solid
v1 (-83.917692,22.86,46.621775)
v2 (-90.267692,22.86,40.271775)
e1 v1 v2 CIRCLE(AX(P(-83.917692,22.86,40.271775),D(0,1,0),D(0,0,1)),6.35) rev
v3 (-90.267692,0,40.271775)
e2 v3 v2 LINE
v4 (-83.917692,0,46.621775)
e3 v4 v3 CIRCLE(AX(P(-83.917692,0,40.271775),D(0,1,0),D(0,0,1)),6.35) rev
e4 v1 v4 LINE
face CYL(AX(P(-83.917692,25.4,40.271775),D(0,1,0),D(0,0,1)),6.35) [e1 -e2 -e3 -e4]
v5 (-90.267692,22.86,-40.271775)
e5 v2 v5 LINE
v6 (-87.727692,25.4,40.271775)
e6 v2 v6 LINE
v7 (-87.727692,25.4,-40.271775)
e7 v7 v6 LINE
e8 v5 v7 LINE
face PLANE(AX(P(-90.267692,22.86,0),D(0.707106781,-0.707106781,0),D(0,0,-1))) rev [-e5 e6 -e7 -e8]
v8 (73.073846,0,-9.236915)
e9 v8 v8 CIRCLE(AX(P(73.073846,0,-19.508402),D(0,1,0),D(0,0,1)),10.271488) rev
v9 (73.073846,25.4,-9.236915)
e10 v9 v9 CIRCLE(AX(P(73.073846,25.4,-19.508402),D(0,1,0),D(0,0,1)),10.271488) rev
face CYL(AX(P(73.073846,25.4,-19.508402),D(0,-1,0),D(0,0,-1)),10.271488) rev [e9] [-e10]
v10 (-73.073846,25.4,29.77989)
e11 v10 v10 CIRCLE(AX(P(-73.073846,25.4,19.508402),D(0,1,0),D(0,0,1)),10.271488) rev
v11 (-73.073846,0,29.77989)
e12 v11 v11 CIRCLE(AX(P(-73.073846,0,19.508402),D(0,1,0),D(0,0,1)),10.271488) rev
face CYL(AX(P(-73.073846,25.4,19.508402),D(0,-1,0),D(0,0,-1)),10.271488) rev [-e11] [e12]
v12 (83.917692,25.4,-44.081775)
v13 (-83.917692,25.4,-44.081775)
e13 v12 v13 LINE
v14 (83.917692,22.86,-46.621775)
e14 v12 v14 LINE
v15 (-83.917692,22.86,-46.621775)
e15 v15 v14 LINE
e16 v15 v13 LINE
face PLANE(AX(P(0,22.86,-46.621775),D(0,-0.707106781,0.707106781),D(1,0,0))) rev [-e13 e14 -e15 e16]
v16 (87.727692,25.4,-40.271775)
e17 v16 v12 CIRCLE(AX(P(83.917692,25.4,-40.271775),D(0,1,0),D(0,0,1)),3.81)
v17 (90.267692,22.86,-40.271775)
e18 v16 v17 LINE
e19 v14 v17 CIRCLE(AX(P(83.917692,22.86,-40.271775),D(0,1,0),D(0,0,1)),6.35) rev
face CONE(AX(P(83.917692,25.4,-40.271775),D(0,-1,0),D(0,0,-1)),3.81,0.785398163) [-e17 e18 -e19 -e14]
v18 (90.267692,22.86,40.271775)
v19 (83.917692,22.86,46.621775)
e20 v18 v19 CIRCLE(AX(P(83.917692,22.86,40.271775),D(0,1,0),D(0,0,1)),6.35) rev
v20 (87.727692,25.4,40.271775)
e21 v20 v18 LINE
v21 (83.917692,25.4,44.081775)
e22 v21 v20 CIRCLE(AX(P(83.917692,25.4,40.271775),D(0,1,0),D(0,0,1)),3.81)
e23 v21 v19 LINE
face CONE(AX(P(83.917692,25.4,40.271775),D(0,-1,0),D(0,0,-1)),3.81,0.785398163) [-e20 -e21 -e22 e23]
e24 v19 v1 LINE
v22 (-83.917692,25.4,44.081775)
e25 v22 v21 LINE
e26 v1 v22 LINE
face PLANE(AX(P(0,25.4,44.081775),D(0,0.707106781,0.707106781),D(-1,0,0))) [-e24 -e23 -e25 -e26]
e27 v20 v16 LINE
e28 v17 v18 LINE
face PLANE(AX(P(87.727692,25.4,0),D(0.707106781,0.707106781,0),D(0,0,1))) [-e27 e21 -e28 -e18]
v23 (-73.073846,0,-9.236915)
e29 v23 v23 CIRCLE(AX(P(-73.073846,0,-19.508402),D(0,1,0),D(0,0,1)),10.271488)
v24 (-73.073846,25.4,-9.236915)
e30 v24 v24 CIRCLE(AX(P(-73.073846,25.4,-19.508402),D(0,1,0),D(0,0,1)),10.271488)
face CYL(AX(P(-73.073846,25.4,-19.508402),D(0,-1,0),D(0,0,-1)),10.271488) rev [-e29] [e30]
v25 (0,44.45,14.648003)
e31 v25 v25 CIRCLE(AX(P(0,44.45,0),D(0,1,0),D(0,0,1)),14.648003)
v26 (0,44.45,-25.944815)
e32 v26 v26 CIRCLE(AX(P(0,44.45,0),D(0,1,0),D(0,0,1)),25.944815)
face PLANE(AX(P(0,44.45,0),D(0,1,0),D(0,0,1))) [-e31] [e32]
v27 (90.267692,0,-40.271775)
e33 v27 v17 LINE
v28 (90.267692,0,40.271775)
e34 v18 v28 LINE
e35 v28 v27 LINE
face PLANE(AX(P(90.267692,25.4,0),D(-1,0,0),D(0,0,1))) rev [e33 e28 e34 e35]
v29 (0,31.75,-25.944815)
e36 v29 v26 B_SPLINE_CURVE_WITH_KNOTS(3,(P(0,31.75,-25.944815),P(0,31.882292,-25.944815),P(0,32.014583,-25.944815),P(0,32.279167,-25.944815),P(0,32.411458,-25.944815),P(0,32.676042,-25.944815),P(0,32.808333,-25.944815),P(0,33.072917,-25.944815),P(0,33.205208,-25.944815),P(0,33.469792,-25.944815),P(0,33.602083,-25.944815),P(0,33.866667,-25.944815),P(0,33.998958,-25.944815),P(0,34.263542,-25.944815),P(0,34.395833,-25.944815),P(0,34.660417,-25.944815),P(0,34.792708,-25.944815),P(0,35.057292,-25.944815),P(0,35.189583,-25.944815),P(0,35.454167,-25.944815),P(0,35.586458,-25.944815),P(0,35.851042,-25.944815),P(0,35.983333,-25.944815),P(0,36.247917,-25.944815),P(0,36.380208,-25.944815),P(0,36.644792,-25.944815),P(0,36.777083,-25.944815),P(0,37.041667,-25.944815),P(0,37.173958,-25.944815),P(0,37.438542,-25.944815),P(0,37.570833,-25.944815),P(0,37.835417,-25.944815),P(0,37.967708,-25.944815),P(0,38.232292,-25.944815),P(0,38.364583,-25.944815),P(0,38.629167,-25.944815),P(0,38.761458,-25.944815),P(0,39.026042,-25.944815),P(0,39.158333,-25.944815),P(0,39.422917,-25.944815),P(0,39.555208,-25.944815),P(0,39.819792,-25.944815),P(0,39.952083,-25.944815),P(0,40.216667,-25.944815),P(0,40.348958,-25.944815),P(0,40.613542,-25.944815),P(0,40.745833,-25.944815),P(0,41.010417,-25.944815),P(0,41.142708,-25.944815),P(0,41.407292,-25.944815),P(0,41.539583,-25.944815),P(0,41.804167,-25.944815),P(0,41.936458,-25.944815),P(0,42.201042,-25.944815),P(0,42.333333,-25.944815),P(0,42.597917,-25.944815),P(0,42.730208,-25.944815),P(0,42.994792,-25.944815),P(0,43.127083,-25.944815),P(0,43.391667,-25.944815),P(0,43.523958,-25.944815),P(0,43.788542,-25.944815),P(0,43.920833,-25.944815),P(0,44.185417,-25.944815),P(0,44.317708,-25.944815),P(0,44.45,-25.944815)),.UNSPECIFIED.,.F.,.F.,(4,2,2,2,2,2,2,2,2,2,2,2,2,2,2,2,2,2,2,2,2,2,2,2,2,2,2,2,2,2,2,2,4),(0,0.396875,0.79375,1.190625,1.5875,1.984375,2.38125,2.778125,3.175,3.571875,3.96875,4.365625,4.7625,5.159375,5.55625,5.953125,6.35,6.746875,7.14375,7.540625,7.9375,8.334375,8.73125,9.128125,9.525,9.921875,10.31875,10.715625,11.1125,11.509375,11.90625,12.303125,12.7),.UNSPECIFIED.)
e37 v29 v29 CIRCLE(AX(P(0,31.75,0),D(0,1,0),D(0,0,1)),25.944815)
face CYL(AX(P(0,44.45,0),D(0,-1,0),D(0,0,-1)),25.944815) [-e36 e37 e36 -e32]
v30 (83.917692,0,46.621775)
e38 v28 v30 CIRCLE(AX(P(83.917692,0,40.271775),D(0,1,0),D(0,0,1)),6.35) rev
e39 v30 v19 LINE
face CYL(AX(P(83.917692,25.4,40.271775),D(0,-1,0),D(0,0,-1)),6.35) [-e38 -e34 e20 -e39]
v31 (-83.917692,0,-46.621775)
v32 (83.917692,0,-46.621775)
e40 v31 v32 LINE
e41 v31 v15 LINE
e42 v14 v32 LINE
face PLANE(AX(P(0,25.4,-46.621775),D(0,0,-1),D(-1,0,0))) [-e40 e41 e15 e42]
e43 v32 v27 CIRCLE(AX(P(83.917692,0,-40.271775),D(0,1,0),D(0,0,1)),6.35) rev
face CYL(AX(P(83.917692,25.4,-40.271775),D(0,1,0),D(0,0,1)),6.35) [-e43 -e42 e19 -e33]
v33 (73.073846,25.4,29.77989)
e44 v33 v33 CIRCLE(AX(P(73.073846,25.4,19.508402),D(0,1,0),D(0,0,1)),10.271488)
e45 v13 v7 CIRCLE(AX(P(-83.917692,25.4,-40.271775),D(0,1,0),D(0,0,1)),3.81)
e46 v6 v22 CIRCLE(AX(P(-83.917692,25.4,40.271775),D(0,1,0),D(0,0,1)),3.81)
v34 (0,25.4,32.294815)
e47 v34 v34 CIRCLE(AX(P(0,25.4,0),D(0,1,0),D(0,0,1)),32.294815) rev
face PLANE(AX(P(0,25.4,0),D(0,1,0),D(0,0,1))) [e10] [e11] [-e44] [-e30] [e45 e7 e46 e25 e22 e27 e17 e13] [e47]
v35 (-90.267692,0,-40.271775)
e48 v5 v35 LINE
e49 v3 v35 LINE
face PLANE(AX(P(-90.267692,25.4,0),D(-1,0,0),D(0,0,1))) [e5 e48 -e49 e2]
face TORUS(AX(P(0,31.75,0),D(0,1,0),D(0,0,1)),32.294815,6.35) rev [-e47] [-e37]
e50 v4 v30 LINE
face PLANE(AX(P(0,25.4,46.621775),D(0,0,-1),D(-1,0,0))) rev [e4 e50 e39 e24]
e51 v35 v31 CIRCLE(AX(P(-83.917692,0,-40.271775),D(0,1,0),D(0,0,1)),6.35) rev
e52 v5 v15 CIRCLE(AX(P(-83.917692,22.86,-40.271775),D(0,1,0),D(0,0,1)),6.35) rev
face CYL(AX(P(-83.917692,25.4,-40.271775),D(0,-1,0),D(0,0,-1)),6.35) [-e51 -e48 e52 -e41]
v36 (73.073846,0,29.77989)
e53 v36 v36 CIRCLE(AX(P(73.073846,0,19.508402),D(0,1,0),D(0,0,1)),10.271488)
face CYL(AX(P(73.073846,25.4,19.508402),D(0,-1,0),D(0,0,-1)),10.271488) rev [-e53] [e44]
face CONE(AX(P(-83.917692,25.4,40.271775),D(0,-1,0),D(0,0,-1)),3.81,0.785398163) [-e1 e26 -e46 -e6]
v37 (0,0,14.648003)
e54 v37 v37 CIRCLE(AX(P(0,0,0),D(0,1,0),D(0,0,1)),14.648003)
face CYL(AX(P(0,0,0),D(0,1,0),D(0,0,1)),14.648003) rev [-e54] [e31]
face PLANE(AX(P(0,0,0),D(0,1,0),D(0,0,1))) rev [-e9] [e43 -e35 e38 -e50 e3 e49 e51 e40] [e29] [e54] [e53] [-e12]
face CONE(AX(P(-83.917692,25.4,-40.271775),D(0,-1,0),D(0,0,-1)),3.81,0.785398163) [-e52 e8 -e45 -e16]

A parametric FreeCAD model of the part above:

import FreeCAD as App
import Part
import Sketcher
Q = App.Units.Quantity


def edges_at(feature, points):
    """Names of the edges that pass closest to the given points."""
    edges = feature.Shape.Edges
    near = lambda p: min(range(len(edges)), key=lambda i: edges[i].distToShape(Part.Vertex(*p))[0])
    return sorted({f"Edge{near(p) + 1}" for p in points})

doc = App.newDocument("Part")
body = doc.addObject("PartDesign::Body", "Body")

# Sketch on XZ plane
sketch1 = body.newObject("Sketcher::SketchObject", "Sketch")
sketch1.AttachmentSupport = (doc.getObject("XZ_Plane"), [""])
sketch1.MapMode = "FlatFace"
sketch1.addGeometry(Part.LineSegment(App.Vector(-90.267692, -46.621775, 0), App.Vector(-90.267692, 46.621775, 0)), False)
sketch1.addGeometry(Part.LineSegment(App.Vector(-90.267692, 46.621775, 0), App.Vector(90.267692, 46.621775, 0)), False)
sketch1.addGeometry(Part.LineSegment(App.Vector(90.267692, 46.621775, 0), App.Vector(90.267692, -46.621775, 0)), False)
sketch1.addGeometry(Part.LineSegment(App.Vector(90.267692, -46.621775, 0), App.Vector(-90.267692, -46.621775, 0)), False)
sketch1.addGeometry(Part.Circle(App.Vector(-73.073846, 19.508402, 0), App.Vector(0, 0, 1), 10.271488), False)
sketch1.addGeometry(Part.Circle(App.Vector(73.073846, 19.508402, 0), App.Vector(0, 0, 1), 10.271488), False)
sketch1.addGeometry(Part.Circle(App.Vector(-73.073846, -19.508402, 0), App.Vector(0, 0, 1), 10.271488), False)
sketch1.addGeometry(Part.Circle(App.Vector(73.073846, -19.508402, 0), App.Vector(0, 0, 1), 10.271488), False)
sketch1.addConstraint(Sketcher.Constraint("Coincident", 0, 2, 1, 1))
sketch1.addConstraint(Sketcher.Constraint("Coincident", 1, 2, 2, 1))
sketch1.addConstraint(Sketcher.Constraint("Coincident", 2, 2, 3, 1))
sketch1.addConstraint(Sketcher.Constraint("Coincident", 3, 2, 0, 1))
sketch1.addConstraint(Sketcher.Constraint("Vertical", 0))
sketch1.addConstraint(Sketcher.Constraint("Horizontal", 1))
sketch1.addConstraint(Sketcher.Constraint("Vertical", 2))
sketch1.addConstraint(Sketcher.Constraint("Horizontal", 3))
sketch1.addConstraint(Sketcher.Constraint("Equal", 4, 5))
sketch1.addConstraint(Sketcher.Constraint("Equal", 5, 6))
sketch1.addConstraint(Sketcher.Constraint("Equal", 6, 7))
sketch1.addConstraint(Sketcher.Constraint("Symmetric", 5, 3, 6, 3, -1, 1))
sketch1.addConstraint(Sketcher.Constraint("Symmetric", 4, 3, 7, 3, -1, 1))
sketch1.addConstraint(Sketcher.Constraint("Symmetric", 0, 2, 2, 2, -1, 1))
sketch1.addConstraint(Sketcher.Constraint("Symmetric", 4, 3, 5, 3, -2))
sketch1.addConstraint(Sketcher.Constraint("Diameter", 4, 20.542975))
sketch1.addConstraint(Sketcher.Constraint("DistanceY", 0, 1, 0, 2, 93.24355))
sketch1.addConstraint(Sketcher.Constraint("DistanceX", 1, 1, 1, 2, 180.535385))
sketch1.addConstraint(Sketcher.Constraint("DistanceX", 0, 2, 5, 3, 163.341538))
sketch1.addConstraint(Sketcher.Constraint("DistanceY", -1, 1, 4, 3, 19.508402))
pad1 = body.newObject("PartDesign::Pad", "Pad")
pad1.Profile = sketch1
pad1.Length = Q("1 in")
pad1.Reversed = True

# Sketch on XZ plane
sketch2 = body.newObject("Sketcher::SketchObject", "Sketch001")
sketch2.AttachmentSupport = (doc.getObject("XZ_Plane"), [""])
sketch2.MapMode = "FlatFace"
sketch2.AttachmentOffset = App.Placement(App.Vector(0, 0, -1 * 25.4), App.Rotation())
sketch2.addGeometry(Part.Circle(App.Vector(0, 0, 0), App.Vector(0, 0, 1), 25.944815), False)
sketch2.addConstraint(Sketcher.Constraint("Coincident", 0, 3, -1, 1))
sketch2.addConstraint(Sketcher.Constraint("Diameter", 0, 51.889631))
pad2 = body.newObject("PartDesign::Pad", "Pad001")
pad2.Profile = sketch2
pad2.Length = Q("0.75 in")
pad2.Reversed = True

# Sketch on XZ plane
sketch3 = body.newObject("Sketcher::SketchObject", "Sketch002")
sketch3.AttachmentSupport = (doc.getObject("XZ_Plane"), [""])
sketch3.MapMode = "FlatFace"
sketch3.AttachmentOffset = App.Placement(App.Vector(0, 0, -1.75 * 25.4), App.Rotation())
sketch3.addGeometry(Part.Circle(App.Vector(0, 0, 0), App.Vector(0, 0, 1), 14.648003), False)
sketch3.addConstraint(Sketcher.Constraint("Coincident", 0, 3, -1, 1))
sketch3.addConstraint(Sketcher.Constraint("Diameter", 0, 29.296006))
pocket1 = body.newObject("PartDesign::Pocket", "Pocket")
pocket1.Profile = sketch3
pocket1.Type = "ThroughAll"
pocket1.Reversed = True
doc.recompute()

fillet = body.newObject("PartDesign::Fillet", "Fillet")
fillet.Base = (pocket1, edges_at(pocket1, [
    (-90.268, 12.7, 46.622),
    (-90.268, 12.7, -46.622),
    (90.268, 12.7, -46.622),
    (90.268, 12.7, 46.622),
    (0, 25.4, 25.945),
]))
fillet.Radius = Q("0.25 in")
doc.recompute()

chamfer = body.newObject("PartDesign::Chamfer", "Chamfer")
chamfer.Base = (fillet, edges_at(fillet, [
    (-90.268, 25.4, 0),
    (0, 25.4, -46.622),
    (0, 25.4, 46.622),
    (90.268, 25.4, 0),
    (-88.408, 25.4, 44.762),
    (88.408, 25.4, 44.762),
    (88.408, 25.4, -44.762),
    (-88.408, 25.4, -44.762),
]))
chamfer.Size = Q("0.1 in")

doc.recompute()
